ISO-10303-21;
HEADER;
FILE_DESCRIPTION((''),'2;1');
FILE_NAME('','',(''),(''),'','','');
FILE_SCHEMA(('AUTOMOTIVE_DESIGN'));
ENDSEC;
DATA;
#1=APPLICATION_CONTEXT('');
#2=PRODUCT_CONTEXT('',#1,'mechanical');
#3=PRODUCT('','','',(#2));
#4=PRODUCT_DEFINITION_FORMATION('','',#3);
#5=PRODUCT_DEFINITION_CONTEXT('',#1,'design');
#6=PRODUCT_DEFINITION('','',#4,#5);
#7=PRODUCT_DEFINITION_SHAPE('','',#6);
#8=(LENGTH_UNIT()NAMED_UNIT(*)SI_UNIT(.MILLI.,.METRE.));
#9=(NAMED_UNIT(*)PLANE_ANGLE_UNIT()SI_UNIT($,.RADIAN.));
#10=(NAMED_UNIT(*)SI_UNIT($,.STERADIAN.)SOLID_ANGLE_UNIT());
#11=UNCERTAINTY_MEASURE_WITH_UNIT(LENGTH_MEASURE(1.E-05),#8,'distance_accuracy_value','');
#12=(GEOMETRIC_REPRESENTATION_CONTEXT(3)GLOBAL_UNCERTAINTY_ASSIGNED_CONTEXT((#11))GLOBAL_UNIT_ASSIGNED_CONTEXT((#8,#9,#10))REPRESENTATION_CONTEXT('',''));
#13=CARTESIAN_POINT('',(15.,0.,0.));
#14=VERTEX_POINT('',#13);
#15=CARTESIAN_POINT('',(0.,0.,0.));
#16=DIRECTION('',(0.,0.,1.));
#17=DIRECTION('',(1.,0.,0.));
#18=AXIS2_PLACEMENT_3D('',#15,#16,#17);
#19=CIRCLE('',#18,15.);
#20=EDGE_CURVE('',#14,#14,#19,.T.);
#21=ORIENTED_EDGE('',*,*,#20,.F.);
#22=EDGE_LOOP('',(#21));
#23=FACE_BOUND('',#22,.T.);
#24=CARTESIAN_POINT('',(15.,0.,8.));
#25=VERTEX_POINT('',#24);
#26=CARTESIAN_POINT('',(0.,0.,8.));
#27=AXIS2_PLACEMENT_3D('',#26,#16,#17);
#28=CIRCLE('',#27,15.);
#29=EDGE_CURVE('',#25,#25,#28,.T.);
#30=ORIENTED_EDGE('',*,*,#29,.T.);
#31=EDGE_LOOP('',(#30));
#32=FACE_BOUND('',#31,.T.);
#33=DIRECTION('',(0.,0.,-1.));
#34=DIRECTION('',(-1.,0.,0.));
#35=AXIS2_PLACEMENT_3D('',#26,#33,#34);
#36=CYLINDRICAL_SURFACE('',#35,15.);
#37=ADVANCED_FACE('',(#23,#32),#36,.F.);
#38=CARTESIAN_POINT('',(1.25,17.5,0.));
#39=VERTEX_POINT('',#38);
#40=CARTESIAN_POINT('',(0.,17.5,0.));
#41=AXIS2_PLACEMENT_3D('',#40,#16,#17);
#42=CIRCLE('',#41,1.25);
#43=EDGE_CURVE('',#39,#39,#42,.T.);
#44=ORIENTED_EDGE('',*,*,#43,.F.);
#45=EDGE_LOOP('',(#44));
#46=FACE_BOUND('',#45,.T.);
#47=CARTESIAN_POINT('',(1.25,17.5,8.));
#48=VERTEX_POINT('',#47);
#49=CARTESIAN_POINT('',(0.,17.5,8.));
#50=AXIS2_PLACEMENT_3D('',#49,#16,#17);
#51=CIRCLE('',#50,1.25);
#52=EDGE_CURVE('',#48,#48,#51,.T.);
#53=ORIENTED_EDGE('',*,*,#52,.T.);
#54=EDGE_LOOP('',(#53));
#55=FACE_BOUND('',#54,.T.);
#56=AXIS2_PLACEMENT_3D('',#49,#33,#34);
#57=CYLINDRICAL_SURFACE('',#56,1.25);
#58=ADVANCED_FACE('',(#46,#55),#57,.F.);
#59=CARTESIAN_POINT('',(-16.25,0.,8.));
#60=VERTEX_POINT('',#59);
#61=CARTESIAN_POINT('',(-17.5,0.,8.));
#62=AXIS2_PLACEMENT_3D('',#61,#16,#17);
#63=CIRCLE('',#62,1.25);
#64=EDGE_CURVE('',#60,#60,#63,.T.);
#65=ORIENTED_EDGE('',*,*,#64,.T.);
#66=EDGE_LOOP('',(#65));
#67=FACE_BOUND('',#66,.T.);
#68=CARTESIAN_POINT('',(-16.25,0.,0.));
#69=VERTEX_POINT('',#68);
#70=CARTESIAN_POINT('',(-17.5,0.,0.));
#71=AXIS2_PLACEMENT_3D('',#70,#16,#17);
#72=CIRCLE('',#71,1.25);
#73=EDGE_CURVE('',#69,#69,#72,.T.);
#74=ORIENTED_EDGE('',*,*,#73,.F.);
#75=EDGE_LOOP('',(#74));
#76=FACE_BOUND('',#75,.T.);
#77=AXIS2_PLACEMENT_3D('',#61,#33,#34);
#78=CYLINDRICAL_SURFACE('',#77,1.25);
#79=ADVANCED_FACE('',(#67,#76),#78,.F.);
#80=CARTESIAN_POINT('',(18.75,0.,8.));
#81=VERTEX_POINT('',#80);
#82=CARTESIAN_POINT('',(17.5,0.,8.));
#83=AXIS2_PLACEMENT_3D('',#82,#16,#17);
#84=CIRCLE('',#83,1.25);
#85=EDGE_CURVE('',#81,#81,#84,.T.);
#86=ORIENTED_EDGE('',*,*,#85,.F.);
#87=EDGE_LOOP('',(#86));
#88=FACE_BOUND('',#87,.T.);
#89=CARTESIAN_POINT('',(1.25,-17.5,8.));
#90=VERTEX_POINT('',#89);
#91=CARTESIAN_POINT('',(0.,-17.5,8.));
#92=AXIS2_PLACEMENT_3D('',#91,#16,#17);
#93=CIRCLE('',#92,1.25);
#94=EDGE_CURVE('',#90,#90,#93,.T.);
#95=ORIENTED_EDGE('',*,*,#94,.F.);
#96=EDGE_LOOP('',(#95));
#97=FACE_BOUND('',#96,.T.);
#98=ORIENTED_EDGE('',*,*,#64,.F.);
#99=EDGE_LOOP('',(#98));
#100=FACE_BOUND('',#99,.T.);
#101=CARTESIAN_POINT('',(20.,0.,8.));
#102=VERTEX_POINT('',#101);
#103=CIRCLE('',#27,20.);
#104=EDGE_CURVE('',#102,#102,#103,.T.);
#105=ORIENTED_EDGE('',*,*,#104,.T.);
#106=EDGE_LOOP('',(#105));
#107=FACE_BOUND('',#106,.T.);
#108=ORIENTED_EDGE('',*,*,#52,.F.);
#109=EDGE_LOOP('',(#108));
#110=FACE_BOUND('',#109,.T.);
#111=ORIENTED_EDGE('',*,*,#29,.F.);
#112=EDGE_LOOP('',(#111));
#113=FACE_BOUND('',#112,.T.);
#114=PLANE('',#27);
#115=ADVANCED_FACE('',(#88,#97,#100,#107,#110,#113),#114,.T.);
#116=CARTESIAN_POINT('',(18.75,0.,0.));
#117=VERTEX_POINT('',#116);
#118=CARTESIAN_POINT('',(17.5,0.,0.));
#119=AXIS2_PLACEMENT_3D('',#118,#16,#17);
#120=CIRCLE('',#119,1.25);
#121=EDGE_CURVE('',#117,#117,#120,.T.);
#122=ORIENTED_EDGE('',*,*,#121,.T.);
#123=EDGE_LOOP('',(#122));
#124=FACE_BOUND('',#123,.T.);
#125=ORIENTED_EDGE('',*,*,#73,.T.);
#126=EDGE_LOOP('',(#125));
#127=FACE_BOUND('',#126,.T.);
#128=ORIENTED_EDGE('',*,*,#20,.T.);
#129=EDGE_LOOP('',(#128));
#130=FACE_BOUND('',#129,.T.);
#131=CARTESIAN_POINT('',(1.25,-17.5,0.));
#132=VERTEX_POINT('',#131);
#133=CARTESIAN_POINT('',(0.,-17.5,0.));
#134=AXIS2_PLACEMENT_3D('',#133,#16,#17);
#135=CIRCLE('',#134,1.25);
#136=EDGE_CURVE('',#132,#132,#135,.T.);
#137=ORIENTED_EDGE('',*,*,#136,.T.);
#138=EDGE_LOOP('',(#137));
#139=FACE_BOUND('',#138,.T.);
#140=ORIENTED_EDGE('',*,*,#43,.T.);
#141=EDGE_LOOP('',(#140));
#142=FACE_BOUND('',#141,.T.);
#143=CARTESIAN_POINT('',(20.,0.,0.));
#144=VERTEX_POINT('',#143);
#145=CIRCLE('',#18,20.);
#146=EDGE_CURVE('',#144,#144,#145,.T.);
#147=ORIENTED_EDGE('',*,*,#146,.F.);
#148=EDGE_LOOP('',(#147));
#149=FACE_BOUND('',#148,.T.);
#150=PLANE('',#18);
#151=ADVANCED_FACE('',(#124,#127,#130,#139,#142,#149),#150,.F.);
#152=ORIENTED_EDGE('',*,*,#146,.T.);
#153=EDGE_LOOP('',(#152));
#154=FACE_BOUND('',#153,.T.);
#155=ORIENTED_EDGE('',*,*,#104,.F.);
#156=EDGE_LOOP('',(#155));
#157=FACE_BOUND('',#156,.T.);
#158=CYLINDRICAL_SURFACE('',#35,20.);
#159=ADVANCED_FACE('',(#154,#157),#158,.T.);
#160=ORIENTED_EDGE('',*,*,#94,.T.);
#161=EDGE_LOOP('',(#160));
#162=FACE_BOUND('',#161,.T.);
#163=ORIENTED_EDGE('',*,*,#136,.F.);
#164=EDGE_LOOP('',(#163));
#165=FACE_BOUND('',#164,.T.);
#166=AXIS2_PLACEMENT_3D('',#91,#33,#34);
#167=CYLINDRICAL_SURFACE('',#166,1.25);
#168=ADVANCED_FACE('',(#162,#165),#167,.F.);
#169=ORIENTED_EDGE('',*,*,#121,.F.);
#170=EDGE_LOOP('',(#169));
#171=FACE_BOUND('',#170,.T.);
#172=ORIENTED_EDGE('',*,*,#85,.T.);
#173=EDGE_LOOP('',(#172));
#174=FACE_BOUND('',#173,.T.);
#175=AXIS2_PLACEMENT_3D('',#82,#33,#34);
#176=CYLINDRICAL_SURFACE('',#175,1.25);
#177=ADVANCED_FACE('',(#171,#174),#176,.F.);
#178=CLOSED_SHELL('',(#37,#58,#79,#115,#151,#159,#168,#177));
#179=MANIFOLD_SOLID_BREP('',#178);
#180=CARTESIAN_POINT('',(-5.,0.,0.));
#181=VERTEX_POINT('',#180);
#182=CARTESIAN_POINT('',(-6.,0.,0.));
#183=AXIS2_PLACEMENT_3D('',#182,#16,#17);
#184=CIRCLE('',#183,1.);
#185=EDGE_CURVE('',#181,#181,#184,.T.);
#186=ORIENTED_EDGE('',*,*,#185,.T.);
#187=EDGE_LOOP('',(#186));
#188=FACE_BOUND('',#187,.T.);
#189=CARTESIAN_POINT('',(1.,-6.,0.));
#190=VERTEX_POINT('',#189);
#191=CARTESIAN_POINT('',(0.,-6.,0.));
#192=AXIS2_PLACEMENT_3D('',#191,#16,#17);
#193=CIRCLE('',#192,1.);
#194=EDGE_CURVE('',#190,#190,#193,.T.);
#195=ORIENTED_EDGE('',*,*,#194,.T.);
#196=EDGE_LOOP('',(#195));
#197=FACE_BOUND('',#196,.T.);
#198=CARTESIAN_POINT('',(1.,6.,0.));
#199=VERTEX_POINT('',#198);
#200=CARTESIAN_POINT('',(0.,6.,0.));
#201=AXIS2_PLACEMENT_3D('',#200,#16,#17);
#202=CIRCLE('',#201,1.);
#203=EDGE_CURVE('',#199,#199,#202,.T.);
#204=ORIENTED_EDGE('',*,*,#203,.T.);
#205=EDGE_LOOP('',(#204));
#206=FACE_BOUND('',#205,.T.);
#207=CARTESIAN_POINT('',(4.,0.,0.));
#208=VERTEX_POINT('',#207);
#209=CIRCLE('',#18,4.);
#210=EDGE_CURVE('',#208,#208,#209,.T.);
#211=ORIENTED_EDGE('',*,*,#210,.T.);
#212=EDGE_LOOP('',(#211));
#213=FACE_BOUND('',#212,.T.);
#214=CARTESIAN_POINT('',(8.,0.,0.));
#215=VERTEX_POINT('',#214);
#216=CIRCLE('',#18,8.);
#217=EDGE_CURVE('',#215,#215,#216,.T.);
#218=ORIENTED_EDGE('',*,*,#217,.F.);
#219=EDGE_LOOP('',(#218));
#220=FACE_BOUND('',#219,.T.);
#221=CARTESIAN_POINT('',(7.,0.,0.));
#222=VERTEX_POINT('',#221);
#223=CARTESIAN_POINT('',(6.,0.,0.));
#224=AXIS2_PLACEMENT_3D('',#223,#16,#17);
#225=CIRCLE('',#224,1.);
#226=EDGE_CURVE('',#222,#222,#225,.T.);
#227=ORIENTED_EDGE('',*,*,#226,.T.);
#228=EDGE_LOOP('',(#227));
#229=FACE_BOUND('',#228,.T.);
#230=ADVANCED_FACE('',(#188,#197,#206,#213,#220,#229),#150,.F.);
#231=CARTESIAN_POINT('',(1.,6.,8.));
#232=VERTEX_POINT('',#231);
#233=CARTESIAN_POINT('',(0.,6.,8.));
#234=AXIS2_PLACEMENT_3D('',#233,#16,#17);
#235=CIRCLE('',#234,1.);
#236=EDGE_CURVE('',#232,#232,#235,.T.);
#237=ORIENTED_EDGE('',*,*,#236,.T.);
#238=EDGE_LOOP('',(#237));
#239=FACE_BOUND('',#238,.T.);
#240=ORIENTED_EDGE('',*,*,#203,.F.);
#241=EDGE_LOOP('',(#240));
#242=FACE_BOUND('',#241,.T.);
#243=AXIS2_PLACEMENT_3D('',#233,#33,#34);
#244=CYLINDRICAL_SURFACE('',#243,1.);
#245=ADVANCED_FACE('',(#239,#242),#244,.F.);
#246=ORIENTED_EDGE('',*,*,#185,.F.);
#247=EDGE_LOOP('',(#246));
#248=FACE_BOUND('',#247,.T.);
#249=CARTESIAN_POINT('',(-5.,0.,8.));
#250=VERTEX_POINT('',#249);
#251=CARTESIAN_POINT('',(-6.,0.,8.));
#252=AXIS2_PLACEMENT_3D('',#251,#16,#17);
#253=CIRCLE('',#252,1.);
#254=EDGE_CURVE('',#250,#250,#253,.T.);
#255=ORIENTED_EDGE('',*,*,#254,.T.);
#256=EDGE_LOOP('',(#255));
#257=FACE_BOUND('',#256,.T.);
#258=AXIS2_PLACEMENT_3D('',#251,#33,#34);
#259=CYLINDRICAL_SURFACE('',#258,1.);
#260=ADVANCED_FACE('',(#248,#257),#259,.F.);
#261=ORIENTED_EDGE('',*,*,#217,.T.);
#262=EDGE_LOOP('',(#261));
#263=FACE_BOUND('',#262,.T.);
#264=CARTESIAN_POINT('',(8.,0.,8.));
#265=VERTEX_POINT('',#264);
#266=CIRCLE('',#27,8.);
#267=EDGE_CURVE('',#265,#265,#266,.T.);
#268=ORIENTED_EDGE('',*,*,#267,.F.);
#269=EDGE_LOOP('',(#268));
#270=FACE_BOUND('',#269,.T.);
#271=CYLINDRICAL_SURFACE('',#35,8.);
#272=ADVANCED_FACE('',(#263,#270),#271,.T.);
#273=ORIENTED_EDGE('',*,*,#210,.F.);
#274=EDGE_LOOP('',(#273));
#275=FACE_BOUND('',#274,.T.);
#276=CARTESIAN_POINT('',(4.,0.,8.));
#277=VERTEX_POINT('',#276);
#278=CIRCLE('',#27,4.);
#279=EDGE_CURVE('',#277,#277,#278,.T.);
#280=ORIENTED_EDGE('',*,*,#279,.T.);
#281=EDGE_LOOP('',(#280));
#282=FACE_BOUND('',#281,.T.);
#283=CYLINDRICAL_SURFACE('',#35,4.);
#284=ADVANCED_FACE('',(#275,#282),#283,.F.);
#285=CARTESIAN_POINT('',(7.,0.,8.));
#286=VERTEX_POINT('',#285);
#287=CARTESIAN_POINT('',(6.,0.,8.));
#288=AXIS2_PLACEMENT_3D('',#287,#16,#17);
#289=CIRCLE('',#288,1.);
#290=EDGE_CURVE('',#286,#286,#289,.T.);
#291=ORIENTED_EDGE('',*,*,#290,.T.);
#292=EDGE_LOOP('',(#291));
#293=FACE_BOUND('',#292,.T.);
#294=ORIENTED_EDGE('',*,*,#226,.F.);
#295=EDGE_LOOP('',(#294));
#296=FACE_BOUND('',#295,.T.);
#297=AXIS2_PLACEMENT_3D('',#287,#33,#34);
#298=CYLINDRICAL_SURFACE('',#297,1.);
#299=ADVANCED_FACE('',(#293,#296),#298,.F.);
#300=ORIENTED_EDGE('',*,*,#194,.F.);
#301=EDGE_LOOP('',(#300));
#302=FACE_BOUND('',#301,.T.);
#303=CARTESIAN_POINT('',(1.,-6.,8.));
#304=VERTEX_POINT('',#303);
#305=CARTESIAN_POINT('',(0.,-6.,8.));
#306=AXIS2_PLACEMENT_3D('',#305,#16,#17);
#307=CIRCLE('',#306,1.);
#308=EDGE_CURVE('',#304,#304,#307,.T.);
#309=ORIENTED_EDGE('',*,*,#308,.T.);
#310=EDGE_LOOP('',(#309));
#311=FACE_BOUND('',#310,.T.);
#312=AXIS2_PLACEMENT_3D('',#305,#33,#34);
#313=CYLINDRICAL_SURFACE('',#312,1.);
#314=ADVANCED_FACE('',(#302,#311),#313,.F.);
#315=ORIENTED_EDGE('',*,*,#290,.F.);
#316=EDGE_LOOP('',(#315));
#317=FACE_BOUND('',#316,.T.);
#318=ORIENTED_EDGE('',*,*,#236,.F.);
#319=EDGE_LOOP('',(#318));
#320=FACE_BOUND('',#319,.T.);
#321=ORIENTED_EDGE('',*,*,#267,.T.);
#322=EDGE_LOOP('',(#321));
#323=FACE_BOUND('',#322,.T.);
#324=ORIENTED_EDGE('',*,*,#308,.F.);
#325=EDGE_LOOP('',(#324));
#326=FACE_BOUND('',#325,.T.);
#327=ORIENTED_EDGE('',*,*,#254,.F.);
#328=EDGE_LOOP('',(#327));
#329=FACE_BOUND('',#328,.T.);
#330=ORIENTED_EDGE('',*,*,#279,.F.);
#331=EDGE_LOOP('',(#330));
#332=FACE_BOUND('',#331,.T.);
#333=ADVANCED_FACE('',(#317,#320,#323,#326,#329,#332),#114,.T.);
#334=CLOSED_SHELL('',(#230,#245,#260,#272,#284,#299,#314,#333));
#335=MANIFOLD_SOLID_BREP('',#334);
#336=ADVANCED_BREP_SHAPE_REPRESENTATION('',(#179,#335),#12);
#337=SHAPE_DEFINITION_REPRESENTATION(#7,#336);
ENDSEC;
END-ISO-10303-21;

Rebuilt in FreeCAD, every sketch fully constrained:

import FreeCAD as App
import Part
import Sketcher
from FreeCAD import Vector
Q = App.Units.Quantity

doc = App.newDocument("Part")
body = doc.addObject("PartDesign::Body", "Body")

# Sketch on XY plane
sketch1 = body.newObject("Sketcher::SketchObject", "Sketch")
sketch1.AttachmentSupport = (doc.getObject("XY_Plane"), [""])
sketch1.MapMode = "FlatFace"
sketch1.addGeometry([
    Part.Circle(Vector(0, 0, 0), Vector(0, 0, 1), 20),  # 0
    Part.Circle(Vector(0, -17.5, 0), Vector(0, 0, 1), 1.2),  # 1
    Part.Circle(Vector(-17.5, 0, 0), Vector(0, 0, 1), 1.2),  # 2
    Part.Circle(Vector(0, 0, 0), Vector(0, 0, 1), 15),  # 3
    Part.Circle(Vector(17.5, 0, 0), Vector(0, 0, 1), 1.2),  # 4
    Part.Circle(Vector(0, 17.5, 0), Vector(0, 0, 1), 1.2),  # 5
], False)
sketch1.addConstraint([
    Sketcher.Constraint("Coincident", 0, 3, -1, 1),
    Sketcher.Constraint("Coincident", 3, 3, -1, 1),
    Sketcher.Constraint("Equal", 1, 2),
    Sketcher.Constraint("Equal", 2, 4),
    Sketcher.Constraint("Equal", 4, 5),
    Sketcher.Constraint("Symmetric", 2, 3, 4, 3, -1, 1),
    Sketcher.Constraint("Symmetric", 1, 3, 5, 3, -1, 1),
    Sketcher.Constraint("PointOnObject", 1, 3, -2),
    Sketcher.Constraint("PointOnObject", 2, 3, -1),
    Sketcher.Constraint("Diameter", 0, Q("40 mm")),
    Sketcher.Constraint("Diameter", 3, Q("30 mm")),
    Sketcher.Constraint("Diameter", 1, Q("2.5 mm")),
    Sketcher.Constraint("DistanceX", 2, 3, 4, 3, Q("35 mm")),
    Sketcher.Constraint("DistanceY", 1, 3, 5, 3, Q("35 mm")),
])
pad1 = body.newObject("PartDesign::Pad", "Pad")
pad1.Profile = sketch1
pad1.Length = 8
body2 = doc.addObject("PartDesign::Body", "Body001")

# Sketch on XY plane
sketch2 = body2.newObject("Sketcher::SketchObject", "Sketch001")
sketch2.AttachmentSupport = (doc.getObject("XY_Plane001"), [""])
sketch2.MapMode = "FlatFace"
sketch2.addGeometry([
    Part.Circle(Vector(0, 0, 0), Vector(0, 0, 1), 8),  # 0
    Part.Circle(Vector(0, -6, 0), Vector(0, 0, 1), 1),  # 1
    Part.Circle(Vector(-6, 0, 0), Vector(0, 0, 1), 1),  # 2
    Part.Circle(Vector(0, 0, 0), Vector(0, 0, 1), 4),  # 3
    Part.Circle(Vector(6, 0, 0), Vector(0, 0, 1), 1),  # 4
    Part.Circle(Vector(0, 6, 0), Vector(0, 0, 1), 1),  # 5
], False)
sketch2.addConstraint([
    Sketcher.Constraint("Coincident", 0, 3, -1, 1),
    Sketcher.Constraint("Coincident", 3, 3, -1, 1),
    Sketcher.Constraint("Equal", 1, 2),
    Sketcher.Constraint("Equal", 2, 4),
    Sketcher.Constraint("Equal", 4, 5),
    Sketcher.Constraint("Symmetric", 2, 3, 4, 3, -1, 1),
    Sketcher.Constraint("Symmetric", 1, 3, 5, 3, -1, 1),
    Sketcher.Constraint("PointOnObject", 1, 3, -2),
    Sketcher.Constraint("PointOnObject", 2, 3, -1),
    Sketcher.Constraint("Diameter", 0, Q("16 mm")),
    Sketcher.Constraint("Diameter", 1, Q("2 mm")),
    Sketcher.Constraint("Diameter", 3, Q("8 mm")),
    Sketcher.Constraint("DistanceY", 1, 3, -1, 1, Q("6 mm")),
    Sketcher.Constraint("DistanceX", 2, 3, -1, 1, Q("6 mm")),
])
pad2 = body2.newObject("PartDesign::Pad", "Pad001")
pad2.Profile = sketch2
pad2.Length = 8

doc.recompute()
